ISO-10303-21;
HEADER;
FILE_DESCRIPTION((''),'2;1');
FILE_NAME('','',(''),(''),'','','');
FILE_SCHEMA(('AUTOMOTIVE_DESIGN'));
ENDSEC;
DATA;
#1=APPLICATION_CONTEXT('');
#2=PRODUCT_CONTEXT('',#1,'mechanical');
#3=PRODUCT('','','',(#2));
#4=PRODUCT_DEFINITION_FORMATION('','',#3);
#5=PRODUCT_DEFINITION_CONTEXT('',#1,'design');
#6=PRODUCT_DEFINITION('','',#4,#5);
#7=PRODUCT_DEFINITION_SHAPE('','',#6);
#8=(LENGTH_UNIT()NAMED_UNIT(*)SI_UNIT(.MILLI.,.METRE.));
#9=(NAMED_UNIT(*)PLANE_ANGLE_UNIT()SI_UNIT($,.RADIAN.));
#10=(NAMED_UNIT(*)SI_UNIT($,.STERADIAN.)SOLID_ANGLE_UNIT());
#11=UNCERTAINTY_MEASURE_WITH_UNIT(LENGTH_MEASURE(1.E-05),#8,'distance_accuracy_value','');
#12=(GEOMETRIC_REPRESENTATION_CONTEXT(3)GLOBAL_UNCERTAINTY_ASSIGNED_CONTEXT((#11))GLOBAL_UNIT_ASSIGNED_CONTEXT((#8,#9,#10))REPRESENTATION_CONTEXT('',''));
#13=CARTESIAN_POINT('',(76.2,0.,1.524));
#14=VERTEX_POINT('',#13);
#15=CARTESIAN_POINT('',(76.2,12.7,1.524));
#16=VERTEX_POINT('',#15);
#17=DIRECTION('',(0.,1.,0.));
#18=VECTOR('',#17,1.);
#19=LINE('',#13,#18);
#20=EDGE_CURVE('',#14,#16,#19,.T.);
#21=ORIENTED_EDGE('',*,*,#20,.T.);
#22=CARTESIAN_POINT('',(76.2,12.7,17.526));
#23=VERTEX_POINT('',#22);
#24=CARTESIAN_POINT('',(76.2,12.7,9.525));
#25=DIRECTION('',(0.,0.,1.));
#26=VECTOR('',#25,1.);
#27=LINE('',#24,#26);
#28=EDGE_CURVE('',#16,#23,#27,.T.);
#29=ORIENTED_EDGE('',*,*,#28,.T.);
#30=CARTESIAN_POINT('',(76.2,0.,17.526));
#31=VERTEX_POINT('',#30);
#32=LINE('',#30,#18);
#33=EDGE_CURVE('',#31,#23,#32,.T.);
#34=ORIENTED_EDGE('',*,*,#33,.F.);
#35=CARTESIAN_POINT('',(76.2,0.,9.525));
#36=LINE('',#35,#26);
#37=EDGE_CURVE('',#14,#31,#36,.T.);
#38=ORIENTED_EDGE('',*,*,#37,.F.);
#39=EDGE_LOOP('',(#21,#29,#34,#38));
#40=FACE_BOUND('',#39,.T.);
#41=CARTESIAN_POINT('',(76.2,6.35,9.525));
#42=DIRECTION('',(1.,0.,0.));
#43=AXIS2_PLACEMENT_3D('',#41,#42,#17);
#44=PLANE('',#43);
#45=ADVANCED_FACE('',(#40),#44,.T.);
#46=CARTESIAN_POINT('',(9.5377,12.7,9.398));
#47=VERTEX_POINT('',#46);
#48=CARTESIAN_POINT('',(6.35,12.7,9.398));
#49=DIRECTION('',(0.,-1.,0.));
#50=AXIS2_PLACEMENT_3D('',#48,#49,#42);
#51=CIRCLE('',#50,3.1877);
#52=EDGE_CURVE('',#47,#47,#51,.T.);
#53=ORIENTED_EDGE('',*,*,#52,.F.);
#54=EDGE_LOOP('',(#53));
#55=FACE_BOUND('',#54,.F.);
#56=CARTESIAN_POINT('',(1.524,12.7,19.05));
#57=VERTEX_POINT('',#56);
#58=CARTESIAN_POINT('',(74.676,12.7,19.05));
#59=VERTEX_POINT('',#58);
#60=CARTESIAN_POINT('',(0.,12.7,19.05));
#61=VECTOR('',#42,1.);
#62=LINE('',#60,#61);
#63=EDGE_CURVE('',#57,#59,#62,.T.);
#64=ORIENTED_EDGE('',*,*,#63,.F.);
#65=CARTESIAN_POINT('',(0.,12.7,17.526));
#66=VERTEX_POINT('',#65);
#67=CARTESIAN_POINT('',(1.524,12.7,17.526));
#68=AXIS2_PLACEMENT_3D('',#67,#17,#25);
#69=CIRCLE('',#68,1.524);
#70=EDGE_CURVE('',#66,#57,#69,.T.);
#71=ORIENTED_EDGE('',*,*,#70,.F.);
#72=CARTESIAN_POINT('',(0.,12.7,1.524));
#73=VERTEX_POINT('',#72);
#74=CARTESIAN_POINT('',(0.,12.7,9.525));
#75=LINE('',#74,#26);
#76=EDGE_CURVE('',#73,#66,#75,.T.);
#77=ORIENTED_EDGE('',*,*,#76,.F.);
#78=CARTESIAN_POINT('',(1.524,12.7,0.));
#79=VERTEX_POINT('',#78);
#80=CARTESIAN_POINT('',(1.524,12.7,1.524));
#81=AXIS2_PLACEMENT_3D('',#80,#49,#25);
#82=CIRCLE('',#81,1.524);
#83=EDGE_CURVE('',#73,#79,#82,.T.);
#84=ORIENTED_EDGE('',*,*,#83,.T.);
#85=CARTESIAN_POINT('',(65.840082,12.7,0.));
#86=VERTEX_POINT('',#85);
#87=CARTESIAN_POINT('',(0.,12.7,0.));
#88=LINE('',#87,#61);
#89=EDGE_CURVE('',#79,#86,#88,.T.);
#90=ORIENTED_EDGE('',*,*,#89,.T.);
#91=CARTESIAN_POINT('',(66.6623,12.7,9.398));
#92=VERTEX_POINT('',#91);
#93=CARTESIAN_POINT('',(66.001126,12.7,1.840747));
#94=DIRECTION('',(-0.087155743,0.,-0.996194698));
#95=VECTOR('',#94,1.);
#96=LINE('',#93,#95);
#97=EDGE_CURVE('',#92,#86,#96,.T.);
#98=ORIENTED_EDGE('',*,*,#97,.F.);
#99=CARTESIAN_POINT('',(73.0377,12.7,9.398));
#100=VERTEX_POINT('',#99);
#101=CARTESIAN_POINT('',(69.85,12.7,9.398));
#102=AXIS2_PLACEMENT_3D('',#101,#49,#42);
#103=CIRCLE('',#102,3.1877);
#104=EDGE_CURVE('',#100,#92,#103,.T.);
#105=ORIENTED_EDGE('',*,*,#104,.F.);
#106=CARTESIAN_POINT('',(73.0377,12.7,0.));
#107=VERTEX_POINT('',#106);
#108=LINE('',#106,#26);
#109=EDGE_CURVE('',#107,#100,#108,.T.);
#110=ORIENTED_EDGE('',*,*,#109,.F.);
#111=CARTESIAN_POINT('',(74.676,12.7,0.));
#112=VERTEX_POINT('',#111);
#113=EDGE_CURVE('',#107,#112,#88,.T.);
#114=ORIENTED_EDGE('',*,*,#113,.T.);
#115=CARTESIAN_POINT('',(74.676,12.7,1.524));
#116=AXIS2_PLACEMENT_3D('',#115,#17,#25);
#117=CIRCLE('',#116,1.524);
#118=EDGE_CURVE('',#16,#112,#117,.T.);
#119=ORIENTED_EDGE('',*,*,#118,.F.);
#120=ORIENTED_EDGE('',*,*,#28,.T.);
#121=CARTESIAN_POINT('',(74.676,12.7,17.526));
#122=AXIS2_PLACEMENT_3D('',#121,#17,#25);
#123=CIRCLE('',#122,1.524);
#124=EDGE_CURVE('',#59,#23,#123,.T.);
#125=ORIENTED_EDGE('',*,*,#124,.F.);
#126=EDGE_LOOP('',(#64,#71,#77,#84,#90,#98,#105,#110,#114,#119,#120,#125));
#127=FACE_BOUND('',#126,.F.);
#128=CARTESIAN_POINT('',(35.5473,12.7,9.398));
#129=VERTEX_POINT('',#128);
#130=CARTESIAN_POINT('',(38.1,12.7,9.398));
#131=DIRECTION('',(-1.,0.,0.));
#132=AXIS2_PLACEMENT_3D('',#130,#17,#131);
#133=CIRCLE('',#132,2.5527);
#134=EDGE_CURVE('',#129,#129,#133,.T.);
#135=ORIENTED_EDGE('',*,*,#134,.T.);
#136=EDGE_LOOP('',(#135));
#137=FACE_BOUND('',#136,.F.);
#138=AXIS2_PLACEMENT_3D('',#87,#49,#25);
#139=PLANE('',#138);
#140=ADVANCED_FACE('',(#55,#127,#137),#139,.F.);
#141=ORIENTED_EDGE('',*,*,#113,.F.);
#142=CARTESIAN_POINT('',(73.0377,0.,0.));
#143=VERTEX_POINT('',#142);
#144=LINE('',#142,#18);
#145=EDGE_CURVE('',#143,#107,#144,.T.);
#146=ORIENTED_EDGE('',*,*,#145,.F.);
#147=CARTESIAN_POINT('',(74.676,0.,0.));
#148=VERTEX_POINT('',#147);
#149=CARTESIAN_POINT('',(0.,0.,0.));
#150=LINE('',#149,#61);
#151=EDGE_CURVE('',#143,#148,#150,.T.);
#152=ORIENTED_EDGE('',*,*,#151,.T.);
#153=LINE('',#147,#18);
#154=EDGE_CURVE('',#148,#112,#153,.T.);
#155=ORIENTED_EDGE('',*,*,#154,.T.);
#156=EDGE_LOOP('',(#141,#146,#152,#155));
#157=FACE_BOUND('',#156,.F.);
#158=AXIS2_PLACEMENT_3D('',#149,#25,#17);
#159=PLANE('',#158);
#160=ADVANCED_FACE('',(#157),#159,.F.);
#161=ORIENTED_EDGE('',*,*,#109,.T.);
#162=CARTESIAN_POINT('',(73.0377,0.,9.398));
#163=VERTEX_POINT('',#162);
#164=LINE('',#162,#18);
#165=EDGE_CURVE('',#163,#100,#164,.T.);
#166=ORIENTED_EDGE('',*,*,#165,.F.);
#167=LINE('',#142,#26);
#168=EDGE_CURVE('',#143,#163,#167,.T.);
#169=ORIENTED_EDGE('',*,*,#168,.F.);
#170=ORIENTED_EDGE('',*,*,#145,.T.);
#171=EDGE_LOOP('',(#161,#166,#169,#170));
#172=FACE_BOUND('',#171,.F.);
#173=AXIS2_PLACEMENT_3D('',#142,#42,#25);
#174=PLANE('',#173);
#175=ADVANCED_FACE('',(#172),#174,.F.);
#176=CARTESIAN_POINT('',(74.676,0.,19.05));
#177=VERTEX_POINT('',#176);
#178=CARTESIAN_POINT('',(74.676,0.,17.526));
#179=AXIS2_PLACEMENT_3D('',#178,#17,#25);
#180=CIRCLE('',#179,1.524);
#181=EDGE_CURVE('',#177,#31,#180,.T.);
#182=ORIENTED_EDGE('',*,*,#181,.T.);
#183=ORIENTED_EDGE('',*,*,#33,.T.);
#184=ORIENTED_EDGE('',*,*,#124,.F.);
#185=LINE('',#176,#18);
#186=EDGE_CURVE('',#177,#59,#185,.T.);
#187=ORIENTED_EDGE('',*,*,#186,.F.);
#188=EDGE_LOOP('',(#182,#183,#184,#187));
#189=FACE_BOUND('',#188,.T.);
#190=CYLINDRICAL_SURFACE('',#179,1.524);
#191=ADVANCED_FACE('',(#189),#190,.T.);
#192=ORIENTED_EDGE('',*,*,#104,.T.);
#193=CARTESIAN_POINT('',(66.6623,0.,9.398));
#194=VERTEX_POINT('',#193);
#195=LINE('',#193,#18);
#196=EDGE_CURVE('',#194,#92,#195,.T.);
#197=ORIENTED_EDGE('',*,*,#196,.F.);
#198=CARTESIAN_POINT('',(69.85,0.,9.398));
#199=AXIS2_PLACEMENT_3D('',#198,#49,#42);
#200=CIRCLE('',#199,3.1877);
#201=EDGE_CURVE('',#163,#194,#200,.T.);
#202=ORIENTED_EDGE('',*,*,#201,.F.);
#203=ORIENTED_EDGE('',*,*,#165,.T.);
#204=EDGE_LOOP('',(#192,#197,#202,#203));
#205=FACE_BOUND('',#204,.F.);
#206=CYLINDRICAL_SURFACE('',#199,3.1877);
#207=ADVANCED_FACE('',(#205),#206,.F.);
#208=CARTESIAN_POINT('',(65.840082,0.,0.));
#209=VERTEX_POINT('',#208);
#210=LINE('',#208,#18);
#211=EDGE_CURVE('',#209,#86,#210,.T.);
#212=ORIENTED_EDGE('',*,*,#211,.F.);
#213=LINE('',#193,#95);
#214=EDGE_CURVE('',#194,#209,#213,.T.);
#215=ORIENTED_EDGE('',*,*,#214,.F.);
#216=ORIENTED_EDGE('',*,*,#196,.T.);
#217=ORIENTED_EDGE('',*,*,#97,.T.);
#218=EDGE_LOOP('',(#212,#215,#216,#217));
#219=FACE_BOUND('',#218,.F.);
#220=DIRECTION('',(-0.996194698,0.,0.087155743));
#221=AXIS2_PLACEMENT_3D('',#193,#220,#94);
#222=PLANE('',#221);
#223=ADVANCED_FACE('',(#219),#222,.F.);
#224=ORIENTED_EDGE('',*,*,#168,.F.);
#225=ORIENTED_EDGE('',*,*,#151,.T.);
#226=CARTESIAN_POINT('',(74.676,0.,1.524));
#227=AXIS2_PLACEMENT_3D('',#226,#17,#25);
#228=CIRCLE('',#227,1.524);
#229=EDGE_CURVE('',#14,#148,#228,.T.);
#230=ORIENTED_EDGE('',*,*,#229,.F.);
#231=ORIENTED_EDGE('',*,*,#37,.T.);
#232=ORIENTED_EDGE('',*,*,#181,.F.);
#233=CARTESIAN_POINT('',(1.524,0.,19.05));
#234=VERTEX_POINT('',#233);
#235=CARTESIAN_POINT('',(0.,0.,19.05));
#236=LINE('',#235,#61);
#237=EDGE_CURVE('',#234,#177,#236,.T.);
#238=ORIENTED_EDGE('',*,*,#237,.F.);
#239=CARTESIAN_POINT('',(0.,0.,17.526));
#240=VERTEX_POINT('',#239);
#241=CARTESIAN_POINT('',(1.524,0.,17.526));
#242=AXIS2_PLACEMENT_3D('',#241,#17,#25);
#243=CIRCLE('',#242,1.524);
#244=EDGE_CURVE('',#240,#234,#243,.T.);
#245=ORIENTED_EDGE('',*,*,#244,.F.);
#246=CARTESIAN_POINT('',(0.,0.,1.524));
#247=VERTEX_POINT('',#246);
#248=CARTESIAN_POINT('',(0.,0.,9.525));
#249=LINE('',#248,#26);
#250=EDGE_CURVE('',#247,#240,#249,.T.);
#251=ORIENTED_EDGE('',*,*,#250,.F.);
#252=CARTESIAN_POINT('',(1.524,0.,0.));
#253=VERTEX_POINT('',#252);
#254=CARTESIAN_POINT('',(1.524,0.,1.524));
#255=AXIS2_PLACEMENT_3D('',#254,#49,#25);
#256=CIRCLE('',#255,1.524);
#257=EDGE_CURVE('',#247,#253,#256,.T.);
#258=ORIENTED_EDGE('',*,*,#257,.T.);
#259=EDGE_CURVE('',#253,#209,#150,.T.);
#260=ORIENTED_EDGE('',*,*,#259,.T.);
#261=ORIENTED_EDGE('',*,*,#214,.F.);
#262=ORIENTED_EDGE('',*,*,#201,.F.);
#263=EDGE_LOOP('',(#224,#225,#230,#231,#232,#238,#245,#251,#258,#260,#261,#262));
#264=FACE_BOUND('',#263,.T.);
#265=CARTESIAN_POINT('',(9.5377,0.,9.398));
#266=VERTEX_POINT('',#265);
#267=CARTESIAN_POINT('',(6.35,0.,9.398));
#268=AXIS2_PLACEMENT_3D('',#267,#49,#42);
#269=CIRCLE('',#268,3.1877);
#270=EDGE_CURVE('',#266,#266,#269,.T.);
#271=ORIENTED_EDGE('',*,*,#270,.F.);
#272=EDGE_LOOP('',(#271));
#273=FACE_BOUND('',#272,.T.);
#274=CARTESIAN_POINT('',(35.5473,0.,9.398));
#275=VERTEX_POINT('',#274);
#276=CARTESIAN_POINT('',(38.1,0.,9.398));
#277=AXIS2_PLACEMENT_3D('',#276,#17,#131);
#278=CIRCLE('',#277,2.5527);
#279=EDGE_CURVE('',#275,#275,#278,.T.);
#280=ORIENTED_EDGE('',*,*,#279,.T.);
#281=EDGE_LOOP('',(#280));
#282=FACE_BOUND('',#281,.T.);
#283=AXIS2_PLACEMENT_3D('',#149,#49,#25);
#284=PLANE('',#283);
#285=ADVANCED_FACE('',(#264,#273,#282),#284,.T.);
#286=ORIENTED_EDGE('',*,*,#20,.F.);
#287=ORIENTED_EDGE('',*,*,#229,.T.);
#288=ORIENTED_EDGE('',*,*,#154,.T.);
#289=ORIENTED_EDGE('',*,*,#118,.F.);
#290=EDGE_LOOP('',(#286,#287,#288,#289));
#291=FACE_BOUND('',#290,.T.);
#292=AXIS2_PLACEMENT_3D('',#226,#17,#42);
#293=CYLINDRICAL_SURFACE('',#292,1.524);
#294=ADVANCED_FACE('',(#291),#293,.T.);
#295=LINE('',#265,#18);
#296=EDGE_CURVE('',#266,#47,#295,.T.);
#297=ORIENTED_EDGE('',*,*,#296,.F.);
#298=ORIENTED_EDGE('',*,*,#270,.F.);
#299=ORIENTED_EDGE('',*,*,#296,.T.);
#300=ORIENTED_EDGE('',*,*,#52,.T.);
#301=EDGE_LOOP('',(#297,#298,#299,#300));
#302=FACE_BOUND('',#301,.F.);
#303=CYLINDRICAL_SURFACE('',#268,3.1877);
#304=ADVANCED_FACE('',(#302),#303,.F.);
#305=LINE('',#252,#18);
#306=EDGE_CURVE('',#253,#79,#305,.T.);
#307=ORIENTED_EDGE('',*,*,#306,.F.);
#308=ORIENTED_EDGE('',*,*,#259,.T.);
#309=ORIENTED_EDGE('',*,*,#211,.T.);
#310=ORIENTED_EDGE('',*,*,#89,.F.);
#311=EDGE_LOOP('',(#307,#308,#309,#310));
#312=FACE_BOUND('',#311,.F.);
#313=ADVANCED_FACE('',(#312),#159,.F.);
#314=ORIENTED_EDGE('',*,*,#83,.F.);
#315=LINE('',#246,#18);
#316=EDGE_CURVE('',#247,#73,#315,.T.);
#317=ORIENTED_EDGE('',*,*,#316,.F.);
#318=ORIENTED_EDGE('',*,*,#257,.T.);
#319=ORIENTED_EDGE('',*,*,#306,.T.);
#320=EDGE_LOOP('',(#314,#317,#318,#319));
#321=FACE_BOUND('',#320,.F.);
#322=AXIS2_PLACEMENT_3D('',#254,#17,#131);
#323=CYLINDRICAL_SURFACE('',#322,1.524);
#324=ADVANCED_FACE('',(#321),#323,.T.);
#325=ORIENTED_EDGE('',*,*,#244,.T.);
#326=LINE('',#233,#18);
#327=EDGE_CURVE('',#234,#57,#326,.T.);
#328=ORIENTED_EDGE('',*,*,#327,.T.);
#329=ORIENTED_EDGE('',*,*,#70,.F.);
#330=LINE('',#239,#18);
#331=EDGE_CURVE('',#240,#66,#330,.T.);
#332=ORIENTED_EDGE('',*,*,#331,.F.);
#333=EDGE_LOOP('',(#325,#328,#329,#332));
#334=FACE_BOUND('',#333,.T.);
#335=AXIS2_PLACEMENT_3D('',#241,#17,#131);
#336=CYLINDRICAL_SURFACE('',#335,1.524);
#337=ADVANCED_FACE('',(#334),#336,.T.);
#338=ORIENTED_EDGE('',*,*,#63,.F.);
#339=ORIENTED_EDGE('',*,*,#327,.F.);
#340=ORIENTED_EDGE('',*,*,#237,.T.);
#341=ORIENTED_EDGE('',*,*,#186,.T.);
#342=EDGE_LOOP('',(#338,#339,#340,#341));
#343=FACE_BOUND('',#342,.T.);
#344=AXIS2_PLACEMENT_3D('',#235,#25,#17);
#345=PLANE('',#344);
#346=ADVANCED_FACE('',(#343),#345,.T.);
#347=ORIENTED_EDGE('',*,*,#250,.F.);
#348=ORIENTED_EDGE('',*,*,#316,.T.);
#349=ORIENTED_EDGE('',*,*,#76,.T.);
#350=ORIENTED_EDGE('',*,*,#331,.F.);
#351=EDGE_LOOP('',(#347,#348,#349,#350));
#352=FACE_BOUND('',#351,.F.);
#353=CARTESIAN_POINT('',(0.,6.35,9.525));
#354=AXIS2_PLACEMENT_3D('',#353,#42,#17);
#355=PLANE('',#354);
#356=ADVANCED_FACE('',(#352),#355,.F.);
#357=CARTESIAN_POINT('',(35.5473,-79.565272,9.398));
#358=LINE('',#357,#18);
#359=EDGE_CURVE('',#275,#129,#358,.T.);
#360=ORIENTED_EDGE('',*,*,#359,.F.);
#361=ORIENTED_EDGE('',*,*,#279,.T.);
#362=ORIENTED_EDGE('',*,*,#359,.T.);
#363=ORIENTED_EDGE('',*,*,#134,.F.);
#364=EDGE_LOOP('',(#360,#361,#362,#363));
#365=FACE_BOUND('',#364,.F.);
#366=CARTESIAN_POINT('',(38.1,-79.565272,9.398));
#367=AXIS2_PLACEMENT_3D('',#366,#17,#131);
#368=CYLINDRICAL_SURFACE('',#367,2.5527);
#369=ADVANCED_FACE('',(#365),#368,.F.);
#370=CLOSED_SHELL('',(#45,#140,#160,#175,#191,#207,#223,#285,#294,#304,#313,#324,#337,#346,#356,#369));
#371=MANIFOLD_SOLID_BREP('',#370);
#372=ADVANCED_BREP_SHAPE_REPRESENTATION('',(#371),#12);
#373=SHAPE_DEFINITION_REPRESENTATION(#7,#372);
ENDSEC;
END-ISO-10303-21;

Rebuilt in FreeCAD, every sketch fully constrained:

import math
import FreeCAD as App
import Part
import Sketcher
from FreeCAD import Vector
Q = App.Units.Quantity


def edges_at(feature, points):
    """Names of the edges that pass closest to the given points."""
    edges = feature.Shape.Edges
    near = lambda p: min(range(len(edges)), key=lambda i: edges[i].distToShape(Part.Vertex(*p))[0])
    return sorted({f"Edge{near(p) + 1}" for p in points})


def add_polygon(sketch, points):
    """Adds a closed chain of lines whose ends are joined by coincident constraints."""
    first, n = sketch.GeometryCount, len(points)
    for a, b in zip(points, points[1:] + points[:1]):
        sketch.addGeometry(Part.LineSegment(App.Vector(*a, 0), App.Vector(*b, 0)), False)
    for i in range(n):
        sketch.addConstraint(Sketcher.Constraint("Coincident", first + i, 2, first + (i + 1) % n, 1))

doc = App.newDocument("Part")
body = doc.addObject("PartDesign::Body", "Body")

sketch1 = doc.addObject("Sketcher::SketchObject", "Sketch")
body.addObject(sketch1)
sketch1.AttachmentSupport = (doc.YZ_Plane, [""])
sketch1.MapMode = "FlatFace"
add_polygon(sketch1, [(0, 19), (0, 0), (13, 0), (13, 19)])
sketch1.addConstraint(Sketcher.Constraint("Vertical", 0))
sketch1.addConstraint(Sketcher.Constraint("Horizontal", 1))
sketch1.addConstraint(Sketcher.Constraint("Vertical", 2))
sketch1.addConstraint(Sketcher.Constraint("Horizontal", 3))
sketch1.addConstraint(Sketcher.Constraint("Coincident", 0, 2, -1, 1))
sketch1.addConstraint(Sketcher.Constraint("DistanceX", 1, 1, 1, 2, Q("0.5 in")))
sketch1.addConstraint(Sketcher.Constraint("DistanceY", 0, 2, 0, 1, Q("0.75 in")))
pad1 = doc.addObject("PartDesign::Pad", "Pad")
body.addObject(pad1)
pad1.Profile = sketch1
pad1.Length = Q("3 in")

sketch2 = doc.addObject("Sketcher::SketchObject", "Sketch001")
body.addObject(sketch2)
sketch2.AttachmentSupport = (doc.XZ_Plane, [""])
sketch2.MapMode = "FlatFace"
sketch2.addGeometry(Part.Circle(Vector(6.3, 9.4, 0), Vector(0, 0, 1), 3.2), False)
sketch2.addGeometry(Part.LineSegment(Vector(66.7, 9.4, 0), Vector(65.8, 0, 0)), False)
sketch2.addGeometry(Part.LineSegment(Vector(65.8, 0, 0), Vector(73, 0, 0)), False)
sketch2.addGeometry(Part.LineSegment(Vector(73, 0, 0), Vector(73, 9.4, 0)), False)
sketch2.addGeometry(Part.ArcOfCircle(Part.Circle(Vector(69.8, 9.4, 0), Vector(0, 0, 1), 3.2), math.radians(0), math.radians(180)), False)
sketch2.addConstraint(Sketcher.Constraint("Coincident", 1, 2, 2, 1))
sketch2.addConstraint(Sketcher.Constraint("Coincident", 2, 2, 3, 1))
sketch2.addConstraint(Sketcher.Constraint("Tangent", 3, 2, 4, 1))
sketch2.addConstraint(Sketcher.Constraint("Coincident", 4, 2, 1, 1))
sketch2.addConstraint(Sketcher.Constraint("Horizontal", 2))
sketch2.addConstraint(Sketcher.Constraint("Vertical", 3))
sketch2.addConstraint(Sketcher.Constraint("Equal", 0, 4))
sketch2.addConstraint(Sketcher.Constraint("PointOnObject", 1, 2, -1))
sketch2.addConstraint(Sketcher.Constraint("Horizontal", 0, 3, 4, 3))
sketch2.addConstraint(Sketcher.Constraint("Horizontal", 3, 2, 4, 2))
sketch2.addConstraint(Sketcher.Constraint("Diameter", 0, Q("0.251 in")))
sketch2.addConstraint(Sketcher.Constraint("Angle", 1, Q("-95 deg")))
sketch2.addConstraint(Sketcher.Constraint("DistanceY", 3, 1, 3, 2, Q("0.37 in")))
sketch2.addConstraint(Sketcher.Constraint("DistanceX", 0, 3, 4, 3, Q("2.5 in")))
sketch2.addConstraint(Sketcher.Constraint("DistanceX", -1, 1, 0, 3, Q("0.25 in")))
pocket1 = doc.addObject("PartDesign::Pocket", "Pocket")
body.addObject(pocket1)
pocket1.Profile = sketch2
pocket1.Length = Q("1 in")

sketch3 = doc.addObject("Sketcher::SketchObject", "Sketch002")
body.addObject(sketch3)
sketch3.AttachmentSupport = (doc.XZ_Plane, [""])
sketch3.MapMode = "FlatFace"
sketch3.addGeometry(Part.Circle(Vector(38.1, 9.4, 0), Vector(0, 0, 1), 2.6), False)
sketch3.addConstraint(Sketcher.Constraint("Diameter", 0, Q("0.201 in")))
sketch3.addConstraint(Sketcher.Constraint("DistanceX", -1, 1, 0, 3, Q("1.5 in")))
sketch3.addConstraint(Sketcher.Constraint("DistanceY", -1, 1, 0, 3, Q("0.37 in")))
doc.recompute()
hole = doc.addObject("PartDesign::Hole", "Hole")
body.addObject(hole)
hole.Profile = sketch3
hole.ThreadType = "None"
hole.Diameter = Q("0.201 in")
hole.DepthType = "ThroughAll"
doc.recompute()

fillet = doc.addObject("PartDesign::Fillet", "Fillet")
body.addObject(fillet)
fillet.Base = (hole, edges_at(hole, [
    (76.2, 6.35, 19.05),
    (0, 6.35, 19.05),
    (76.2, 6.35, 0),
    (0, 6.35, 0),
]))
fillet.Radius = Q("0.06 in")

doc.recompute()
